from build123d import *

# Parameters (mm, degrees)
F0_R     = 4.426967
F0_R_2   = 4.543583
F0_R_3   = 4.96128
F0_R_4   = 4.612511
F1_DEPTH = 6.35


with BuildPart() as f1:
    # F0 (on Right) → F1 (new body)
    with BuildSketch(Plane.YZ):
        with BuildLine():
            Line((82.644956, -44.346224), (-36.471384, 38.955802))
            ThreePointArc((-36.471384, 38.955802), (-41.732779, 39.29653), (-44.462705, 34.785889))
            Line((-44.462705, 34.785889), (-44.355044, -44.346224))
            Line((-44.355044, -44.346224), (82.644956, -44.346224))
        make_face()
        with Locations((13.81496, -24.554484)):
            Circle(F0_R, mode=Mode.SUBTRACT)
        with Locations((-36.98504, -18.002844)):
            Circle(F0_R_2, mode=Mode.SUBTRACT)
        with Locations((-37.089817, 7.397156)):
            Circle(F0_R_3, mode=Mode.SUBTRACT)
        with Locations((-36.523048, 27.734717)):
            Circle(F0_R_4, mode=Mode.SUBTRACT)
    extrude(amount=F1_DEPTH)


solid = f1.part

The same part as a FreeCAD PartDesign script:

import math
import FreeCAD as App
import Part
import Sketcher
from FreeCAD import Vector
Q = App.Units.Quantity

doc = App.newDocument("Part")
body = doc.addObject("PartDesign::Body", "Body")

sketch1 = body.newObject("Sketcher::SketchObject", "Sketch")
sketch1.AttachmentSupport = (doc.getObject("YZ_Plane"), [""])
sketch1.MapMode = "FlatFace"
sketch1.addGeometry([
    Part.LineSegment(Vector(82.644956, -44.346224, 0), Vector(-36.471384, 38.955802, 0)),
    Part.ArcOfCircle(Part.Circle(Vector(-39.38271, 34.792801, 0), Vector(0, 0, 1), 5.079999), math.radians(55.033613), math.radians(180.077963)),
    Part.LineSegment(Vector(-44.462705, 34.785889, 0), Vector(-44.355044, -44.346224, 0)),
    Part.LineSegment(Vector(-44.355044, -44.346224, 0), Vector(82.644956, -44.346224, 0)),
    Part.Circle(Vector(-36.98504, -18.002844, 0), Vector(0, 0, 1), 4.543583),
    Part.Circle(Vector(13.81496, -24.554484, 0), Vector(0, 0, 1), 4.426967),
    Part.Circle(Vector(-37.089817, 7.397156, 0), Vector(0, 0, 1), 4.96128),
    Part.Circle(Vector(-36.523048, 27.734717, 0), Vector(0, 0, 1), 4.612511),
], False)
sketch1.addConstraint([
    Sketcher.Constraint("Coincident", 0, 2, 1, 1),
    Sketcher.Constraint("Coincident", 1, 2, 2, 1),
    Sketcher.Constraint("Coincident", 2, 2, 3, 1),
    Sketcher.Constraint("Coincident", 3, 2, 0, 1),
    Sketcher.Constraint("Horizontal", 3),
    Sketcher.Constraint("Radius", 1, Q("0.2 in")),
    Sketcher.Constraint("DistanceX", 3, 1, 3, 2, Q("5 in")),
    Sketcher.Constraint("DistanceX", 4, 3, 5, 3, Q("2 in")),
    Sketcher.Constraint("DistanceY", 4, 3, 6, 3, Q("1 in")),
    Sketcher.Constraint("Diameter", 6, Q("9.92256 mm")),
    Sketcher.Constraint("Diameter", 7, Q("9.225022 mm")),
    Sketcher.Constraint("Diameter", 4, Q("9.087166 mm")),
    Sketcher.Constraint("Diameter", 5, Q("8.853934 mm")),
    Sketcher.Constraint("DistanceX", 1, 2, -1, 1, Q("1.7505002 in")),
    Sketcher.Constraint("DistanceY", -1, 1, 1, 3, Q("34.792801 mm")),
    Sketcher.Constraint("DistanceY", -1, 1, 0, 2, Q("38.955802 mm")),
    Sketcher.Constraint("DistanceY", 5, 3, 7, 3, Q("52.289201 mm")),
    Sketcher.Constraint("DistanceX", 4, 3, -1, 1, Q("36.98504 mm")),
    Sketcher.Constraint("DistanceX", 7, 3, -1, 1, Q("36.523048 mm")),
    Sketcher.Constraint("DistanceY", -1, 1, 1, 2, Q("34.785889 mm")),
    Sketcher.Constraint("DistanceY", 5, 3, 4, 3, Q("6.55164 mm")),
    Sketcher.Constraint("DistanceX", 6, 3, 7, 3, Q("0.566769 mm")),
    Sketcher.Constraint("DistanceY", 7, 3, 1, 2, Q("7.051172 mm")),
    Sketcher.Constraint("DistanceY", 2, 2, 4, 3, Q("26.34338 mm")),
    Sketcher.Constraint("DistanceX", 1, 2, 2, 2, Q("0.107661 mm")),
])
pad1 = body.newObject("PartDesign::Pad", "Pad")
pad1.Profile = sketch1
pad1.Length = Q("0.25 in")

doc.recompute()
